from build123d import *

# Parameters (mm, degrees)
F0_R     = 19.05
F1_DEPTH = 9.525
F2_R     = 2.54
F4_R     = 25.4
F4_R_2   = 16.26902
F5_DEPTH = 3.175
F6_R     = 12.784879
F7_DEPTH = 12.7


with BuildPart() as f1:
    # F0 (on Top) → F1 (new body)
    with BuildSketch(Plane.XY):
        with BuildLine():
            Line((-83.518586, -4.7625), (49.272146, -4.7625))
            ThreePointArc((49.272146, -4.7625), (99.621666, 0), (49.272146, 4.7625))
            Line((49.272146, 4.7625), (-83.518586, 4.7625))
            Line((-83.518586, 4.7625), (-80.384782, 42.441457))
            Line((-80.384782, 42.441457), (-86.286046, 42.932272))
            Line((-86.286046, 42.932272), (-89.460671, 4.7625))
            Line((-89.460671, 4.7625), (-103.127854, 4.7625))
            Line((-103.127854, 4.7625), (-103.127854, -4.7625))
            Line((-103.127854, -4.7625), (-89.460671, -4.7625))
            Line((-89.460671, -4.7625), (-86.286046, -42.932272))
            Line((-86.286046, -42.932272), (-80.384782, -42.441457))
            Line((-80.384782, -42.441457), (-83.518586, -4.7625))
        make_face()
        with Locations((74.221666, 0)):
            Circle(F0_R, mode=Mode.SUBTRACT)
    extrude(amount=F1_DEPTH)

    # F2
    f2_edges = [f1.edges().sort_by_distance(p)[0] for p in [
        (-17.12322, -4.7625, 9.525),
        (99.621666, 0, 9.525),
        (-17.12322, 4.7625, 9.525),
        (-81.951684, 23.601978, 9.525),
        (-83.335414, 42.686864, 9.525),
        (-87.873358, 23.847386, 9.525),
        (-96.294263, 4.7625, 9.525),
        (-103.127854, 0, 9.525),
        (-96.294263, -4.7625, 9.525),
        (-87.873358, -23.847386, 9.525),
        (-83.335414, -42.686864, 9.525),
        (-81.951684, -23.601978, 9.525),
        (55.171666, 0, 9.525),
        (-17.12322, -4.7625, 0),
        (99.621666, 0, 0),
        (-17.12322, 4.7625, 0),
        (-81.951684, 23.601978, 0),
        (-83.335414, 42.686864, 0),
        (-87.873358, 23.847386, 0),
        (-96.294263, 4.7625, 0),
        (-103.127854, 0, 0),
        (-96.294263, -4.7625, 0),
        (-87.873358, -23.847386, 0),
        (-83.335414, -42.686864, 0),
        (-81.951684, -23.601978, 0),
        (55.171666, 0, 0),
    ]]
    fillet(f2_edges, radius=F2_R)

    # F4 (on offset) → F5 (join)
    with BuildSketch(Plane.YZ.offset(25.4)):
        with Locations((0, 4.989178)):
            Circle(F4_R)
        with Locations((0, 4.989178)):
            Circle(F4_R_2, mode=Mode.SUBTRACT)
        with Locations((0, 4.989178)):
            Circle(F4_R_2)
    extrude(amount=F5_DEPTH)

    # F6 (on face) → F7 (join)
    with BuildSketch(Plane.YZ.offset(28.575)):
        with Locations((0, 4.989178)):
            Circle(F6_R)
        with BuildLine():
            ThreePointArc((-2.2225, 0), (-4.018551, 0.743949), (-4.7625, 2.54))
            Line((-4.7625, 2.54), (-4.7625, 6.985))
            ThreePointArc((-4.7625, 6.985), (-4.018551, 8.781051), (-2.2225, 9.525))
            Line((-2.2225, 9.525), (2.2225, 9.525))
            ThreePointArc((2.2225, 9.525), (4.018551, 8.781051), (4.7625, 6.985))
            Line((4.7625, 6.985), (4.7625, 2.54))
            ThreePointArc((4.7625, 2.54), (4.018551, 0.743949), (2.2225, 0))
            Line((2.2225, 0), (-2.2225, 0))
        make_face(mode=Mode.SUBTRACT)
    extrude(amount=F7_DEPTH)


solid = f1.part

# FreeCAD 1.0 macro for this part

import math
import FreeCAD as App
import Part
import Sketcher

V = App.Vector
Q = App.Units.Quantity


def edges_at(feature, points):
    """Names of the edges that pass closest to the given points."""
    edges = feature.Shape.Edges
    near = lambda p: min(range(len(edges)), key=lambda i: edges[i].distToShape(Part.Vertex(*p))[0])
    return sorted({f"Edge{near(p) + 1}" for p in points})

doc = App.newDocument("Part")
params = doc.addObject("Spreadsheet::Sheet", "Params")
for row, (alias, value) in enumerate([
    ("sketch1_radius", "1 in"),
    ("sketch1_diameter", "1.5 in"),
    ("sketch1_height", "0.375 in"),
    ("pad1_length", "0.375 in"),
    ("fillet_radius", "0.1 in"),
    ("sketch2_diameter", "2 in"),
    ("pad2_length", "0.125 in"),
    ("sketch3_radius", "0.1 in"),
    ("sketch3_width", "0.175 in"),
    ("pad3_length", "0.5 in"),
], start=1):
    params.set(f"A{row}", alias)
    params.set(f"B{row}", "=" + value)
    params.setAlias(f"B{row}", alias)

body = doc.addObject("PartDesign::Body", "Body")

# Sketch on XY plane
sketch1 = body.newObject("Sketcher::SketchObject", "Sketch")
sketch1.AttachmentSupport = (doc.getObject("XY_Plane"), [""])
sketch1.MapMode = "FlatFace"
sketch1.addGeometry(Part.LineSegment(V(-83.518586, -4.7625, 0), V(49.272146, -4.7625, 0)), False)
sketch1.addGeometry(Part.ArcOfCircle(Part.Circle(V(74.221666, 0, 0), V(0, 0, 1), 25.4), math.radians(-169.193077), math.radians(169.193077)), False)
sketch1.addGeometry(Part.LineSegment(V(49.272146, 4.7625, 0), V(-83.518586, 4.7625, 0)), False)
sketch1.addGeometry(Part.LineSegment(V(-83.518586, 4.7625, 0), V(-80.384782, 42.441457, 0)), False)
sketch1.addGeometry(Part.LineSegment(V(-80.384782, 42.441457, 0), V(-86.286046, 42.932272, 0)), False)
sketch1.addGeometry(Part.LineSegment(V(-86.286046, 42.932272, 0), V(-89.460671, 4.7625, 0)), False)
sketch1.addGeometry(Part.LineSegment(V(-89.460671, 4.7625, 0), V(-103.127854, 4.7625, 0)), False)
sketch1.addGeometry(Part.LineSegment(V(-103.127854, 4.7625, 0), V(-103.127854, -4.7625, 0)), False)
sketch1.addGeometry(Part.LineSegment(V(-103.127854, -4.7625, 0), V(-89.460671, -4.7625, 0)), False)
sketch1.addGeometry(Part.LineSegment(V(-89.460671, -4.7625, 0), V(-86.286046, -42.932272, 0)), False)
sketch1.addGeometry(Part.LineSegment(V(-86.286046, -42.932272, 0), V(-80.384782, -42.441457, 0)), False)
sketch1.addGeometry(Part.LineSegment(V(-80.384782, -42.441457, 0), V(-83.518586, -4.7625, 0)), False)
sketch1.addGeometry(Part.Circle(V(74.221666, 0, 0), V(0, 0, 1), 19.05), False)
sketch1.addConstraint(Sketcher.Constraint("Coincident", 0, 2, 1, 1))
sketch1.addConstraint(Sketcher.Constraint("Coincident", 1, 2, 2, 1))
sketch1.addConstraint(Sketcher.Constraint("Coincident", 2, 2, 3, 1))
sketch1.addConstraint(Sketcher.Constraint("Coincident", 3, 2, 4, 1))
sketch1.addConstraint(Sketcher.Constraint("Coincident", 4, 2, 5, 1))
sketch1.addConstraint(Sketcher.Constraint("Coincident", 5, 2, 6, 1))
sketch1.addConstraint(Sketcher.Constraint("Coincident", 6, 2, 7, 1))
sketch1.addConstraint(Sketcher.Constraint("Coincident", 7, 2, 8, 1))
sketch1.addConstraint(Sketcher.Constraint("Coincident", 8, 2, 9, 1))
sketch1.addConstraint(Sketcher.Constraint("Coincident", 9, 2, 10, 1))
sketch1.addConstraint(Sketcher.Constraint("Coincident", 10, 2, 11, 1))
sketch1.addConstraint(Sketcher.Constraint("Coincident", 11, 2, 0, 1))
sketch1.addConstraint(Sketcher.Constraint("Horizontal", 0))
sketch1.addConstraint(Sketcher.Constraint("Horizontal", 2))
sketch1.addConstraint(Sketcher.Constraint("Horizontal", 6))
sketch1.addConstraint(Sketcher.Constraint("Vertical", 7))
sketch1.addConstraint(Sketcher.Constraint("Horizontal", 8))
sketch1.addConstraint(Sketcher.Constraint("Coincident", 12, 3, 1, 3))
sketch1.addConstraint(Sketcher.Constraint("PointOnObject", 1, 3, -1))
sketch1.addConstraint(Sketcher.Constraint("Radius", 1, Q("1 in")))
sketch1.addConstraint(Sketcher.Constraint("Diameter", 12, Q("1.5 in")))
sketch1.addConstraint(Sketcher.Constraint("DistanceX", 6, 2, 1, 2, Q("6 in")))
sketch1.addConstraint(Sketcher.Constraint("DistanceY", 7, 2, 7, 1, Q("0.375 in")))
sketch1.addConstraint(Sketcher.Constraint("DistanceY", 0, 2, -1, 1, Q("0.1875 in")))
sketch1.addConstraint(Sketcher.Constraint("DistanceY", -1, 1, 1, 2, Q("0.1875 in")))
sketch1.addConstraint(Sketcher.Constraint("DistanceY", -1, 1, 5, 2, Q("0.1875 in")))
sketch1.addConstraint(Sketcher.Constraint("DistanceX", 0, 1, 0, 2, 132.790732))
sketch1.addConstraint(Sketcher.Constraint("DistanceX", 2, 2, 2, 1, 132.790732))
sketch1.addConstraint(Sketcher.Constraint("Distance", 4, 5.92164))
sketch1.addConstraint(Sketcher.Constraint("Distance", 10, 5.92164))
sketch1.addConstraint(Sketcher.Constraint("DistanceX", 6, 2, 6, 1, 13.667183))
sketch1.addConstraint(Sketcher.Constraint("DistanceX", 8, 1, 8, 2, 13.667183))
sketch1.addConstraint(Sketcher.Constraint("DistanceX", 3, 2, -1, 1, 80.384782))
sketch1.addConstraint(Sketcher.Constraint("DistanceY", -1, 1, 4, 2, 42.932272))
sketch1.addConstraint(Sketcher.Constraint("DistanceX", 5, 2, -1, 1, 89.460671))
sketch1.addConstraint(Sketcher.Constraint("DistanceY", 9, 2, -1, 1, 42.932272))
sketch1.addConstraint(Sketcher.Constraint("DistanceX", 10, 2, -1, 1, 80.384782))
sketch1.addConstraint(Sketcher.Constraint("DistanceX", 4, 2, 2, 2, 2.76746))
sketch1.addConstraint(Sketcher.Constraint("DistanceX", 7, 2, 9, 2, 16.841808))
sketch1.setExpression("Constraints[19]", "Params.sketch1_radius")
sketch1.setExpression("Constraints[20]", "Params.sketch1_diameter")
sketch1.setExpression("Constraints[22]", "Params.sketch1_height")
pad1 = body.newObject("PartDesign::Pad", "Pad")
pad1.Profile = sketch1
pad1.setExpression("Length", "Params.pad1_length")
doc.recompute()

fillet = body.newObject("PartDesign::Fillet", "Fillet")
fillet.Base = (pad1, edges_at(pad1, [
    (-17.123, -4.763, 9.525),
    (99.622, 0, 9.525),
    (-17.123, 4.763, 9.525),
    (-81.952, 23.602, 9.525),
    (-83.335, 42.687, 9.525),
    (-87.873, 23.847, 9.525),
    (-96.294, 4.763, 9.525),
    (-103.128, 0, 9.525),
    (-96.294, -4.763, 9.525),
    (-87.873, -23.847, 9.525),
    (-83.335, -42.687, 9.525),
    (-81.952, -23.602, 9.525),
    (55.172, 0, 9.525),
    (-17.123, -4.763, 0),
    (99.622, 0, 0),
    (-17.123, 4.763, 0),
    (-81.952, 23.602, 0),
    (-83.335, 42.687, 0),
    (-87.873, 23.847, 0),
    (-96.294, 4.763, 0),
    (-103.128, 0, 0),
    (-96.294, -4.763, 0),
    (-87.873, -23.847, 0),
    (-83.335, -42.687, 0),
    (-81.952, -23.602, 0),
    (55.172, 0, 0),
]))
fillet.setExpression("Radius", "Params.fillet_radius")

# Sketch on YZ plane
sketch2 = body.newObject("Sketcher::SketchObject", "Sketch001")
sketch2.AttachmentSupport = (doc.getObject("YZ_Plane"), [""])
sketch2.MapMode = "FlatFace"
sketch2.AttachmentOffset = App.Placement(V(0, 0, 1 * 25.4), App.Rotation())
sketch2.addGeometry(Part.Circle(V(0, 5, 0), V(0, 0, 1), 25), False)
sketch2.addConstraint(Sketcher.Constraint("PointOnObject", 0, 3, -2))
sketch2.addConstraint(Sketcher.Constraint("Diameter", 0, Q("2 in")))
sketch2.addConstraint(Sketcher.Constraint("DistanceY", -1, 1, 0, 3, 4.989178))
sketch2.setExpression("Constraints[1]", "Params.sketch2_diameter")
pad2 = body.newObject("PartDesign::Pad", "Pad001")
pad2.Profile = sketch2
pad2.setExpression("Length", "Params.pad2_length")

# Sketch on YZ plane
sketch3 = body.newObject("Sketcher::SketchObject", "Sketch002")
sketch3.AttachmentSupport = (doc.getObject("YZ_Plane"), [""])
sketch3.MapMode = "FlatFace"
sketch3.AttachmentOffset = App.Placement(V(0, 0, 1.125 * 25.4), App.Rotation())
sketch3.addGeometry(Part.Circle(V(0, 5, 0), V(0, 0, 1), 12.8), False)
sketch3.addGeometry(Part.LineSegment(V(2.2, 0, 0), V(-2.2, 0, 0)), False)
sketch3.addGeometry(Part.ArcOfCircle(Part.Circle(V(-2.2, 2.5, 0), V(0, 0, 1), 2.5), math.radians(-180), math.radians(-90)), False)
sketch3.addGeometry(Part.LineSegment(V(-4.8, 2.5, 0), V(-4.8, 7, 0)), False)
sketch3.addGeometry(Part.ArcOfCircle(Part.Circle(V(-2.2, 7, 0), V(0, 0, 1), 2.5), math.radians(90), math.radians(180)), False)
sketch3.addGeometry(Part.LineSegment(V(-2.2, 9.5, 0), V(2.2, 9.5, 0)), False)
sketch3.addGeometry(Part.ArcOfCircle(Part.Circle(V(2.2, 7, 0), V(0, 0, 1), 2.5), math.radians(0), math.radians(90)), False)
sketch3.addGeometry(Part.LineSegment(V(4.8, 7, 0), V(4.8, 2.5, 0)), False)
sketch3.addGeometry(Part.ArcOfCircle(Part.Circle(V(2.2, 2.5, 0), V(0, 0, 1), 2.5), math.radians(-90), math.radians(0)), False)
sketch3.addConstraint(Sketcher.Constraint("Tangent", 1, 2, 2, 2))
sketch3.addConstraint(Sketcher.Constraint("Tangent", 2, 1, 3, 1))
sketch3.addConstraint(Sketcher.Constraint("Tangent", 3, 2, 4, 2))
sketch3.addConstraint(Sketcher.Constraint("Tangent", 4, 1, 5, 1))
sketch3.addConstraint(Sketcher.Constraint("Tangent", 5, 2, 6, 2))
sketch3.addConstraint(Sketcher.Constraint("Tangent", 6, 1, 7, 1))
sketch3.addConstraint(Sketcher.Constraint("Tangent", 7, 2, 8, 2))
sketch3.addConstraint(Sketcher.Constraint("Tangent", 8, 1, 1, 1))
sketch3.addConstraint(Sketcher.Constraint("Horizontal", 1))
sketch3.addConstraint(Sketcher.Constraint("Vertical", 3))
sketch3.addConstraint(Sketcher.Constraint("Horizontal", 5))
sketch3.addConstraint(Sketcher.Constraint("Vertical", 7))
sketch3.addConstraint(Sketcher.Constraint("Equal", 2, 4))
sketch3.addConstraint(Sketcher.Constraint("Equal", 4, 6))
sketch3.addConstraint(Sketcher.Constraint("Equal", 6, 8))
sketch3.addConstraint(Sketcher.Constraint("Symmetric", 1, 2, 8, 1, -1, 1))
sketch3.addConstraint(Sketcher.Constraint("PointOnObject", 0, 3, -2))
sketch3.addConstraint(Sketcher.Constraint("Equal", 5, 3))
sketch3.addConstraint(Sketcher.Constraint("Radius", 2, Q("0.1 in")))
sketch3.addConstraint(Sketcher.Constraint("DistanceX", 1, 2, 1, 1, Q("0.175 in")))
sketch3.addConstraint(Sketcher.Constraint("Diameter", 0, 25.569758))
sketch3.addConstraint(Sketcher.Constraint("DistanceY", 0, 3, 4, 3, 1.995821))
sketch3.setExpression("Constraints[18]", "Params.sketch3_radius")
sketch3.setExpression("Constraints[19]", "Params.sketch3_width")
pad3 = body.newObject("PartDesign::Pad", "Pad002")
pad3.Profile = sketch3
pad3.setExpression("Length", "Params.pad3_length")

doc.recompute()
